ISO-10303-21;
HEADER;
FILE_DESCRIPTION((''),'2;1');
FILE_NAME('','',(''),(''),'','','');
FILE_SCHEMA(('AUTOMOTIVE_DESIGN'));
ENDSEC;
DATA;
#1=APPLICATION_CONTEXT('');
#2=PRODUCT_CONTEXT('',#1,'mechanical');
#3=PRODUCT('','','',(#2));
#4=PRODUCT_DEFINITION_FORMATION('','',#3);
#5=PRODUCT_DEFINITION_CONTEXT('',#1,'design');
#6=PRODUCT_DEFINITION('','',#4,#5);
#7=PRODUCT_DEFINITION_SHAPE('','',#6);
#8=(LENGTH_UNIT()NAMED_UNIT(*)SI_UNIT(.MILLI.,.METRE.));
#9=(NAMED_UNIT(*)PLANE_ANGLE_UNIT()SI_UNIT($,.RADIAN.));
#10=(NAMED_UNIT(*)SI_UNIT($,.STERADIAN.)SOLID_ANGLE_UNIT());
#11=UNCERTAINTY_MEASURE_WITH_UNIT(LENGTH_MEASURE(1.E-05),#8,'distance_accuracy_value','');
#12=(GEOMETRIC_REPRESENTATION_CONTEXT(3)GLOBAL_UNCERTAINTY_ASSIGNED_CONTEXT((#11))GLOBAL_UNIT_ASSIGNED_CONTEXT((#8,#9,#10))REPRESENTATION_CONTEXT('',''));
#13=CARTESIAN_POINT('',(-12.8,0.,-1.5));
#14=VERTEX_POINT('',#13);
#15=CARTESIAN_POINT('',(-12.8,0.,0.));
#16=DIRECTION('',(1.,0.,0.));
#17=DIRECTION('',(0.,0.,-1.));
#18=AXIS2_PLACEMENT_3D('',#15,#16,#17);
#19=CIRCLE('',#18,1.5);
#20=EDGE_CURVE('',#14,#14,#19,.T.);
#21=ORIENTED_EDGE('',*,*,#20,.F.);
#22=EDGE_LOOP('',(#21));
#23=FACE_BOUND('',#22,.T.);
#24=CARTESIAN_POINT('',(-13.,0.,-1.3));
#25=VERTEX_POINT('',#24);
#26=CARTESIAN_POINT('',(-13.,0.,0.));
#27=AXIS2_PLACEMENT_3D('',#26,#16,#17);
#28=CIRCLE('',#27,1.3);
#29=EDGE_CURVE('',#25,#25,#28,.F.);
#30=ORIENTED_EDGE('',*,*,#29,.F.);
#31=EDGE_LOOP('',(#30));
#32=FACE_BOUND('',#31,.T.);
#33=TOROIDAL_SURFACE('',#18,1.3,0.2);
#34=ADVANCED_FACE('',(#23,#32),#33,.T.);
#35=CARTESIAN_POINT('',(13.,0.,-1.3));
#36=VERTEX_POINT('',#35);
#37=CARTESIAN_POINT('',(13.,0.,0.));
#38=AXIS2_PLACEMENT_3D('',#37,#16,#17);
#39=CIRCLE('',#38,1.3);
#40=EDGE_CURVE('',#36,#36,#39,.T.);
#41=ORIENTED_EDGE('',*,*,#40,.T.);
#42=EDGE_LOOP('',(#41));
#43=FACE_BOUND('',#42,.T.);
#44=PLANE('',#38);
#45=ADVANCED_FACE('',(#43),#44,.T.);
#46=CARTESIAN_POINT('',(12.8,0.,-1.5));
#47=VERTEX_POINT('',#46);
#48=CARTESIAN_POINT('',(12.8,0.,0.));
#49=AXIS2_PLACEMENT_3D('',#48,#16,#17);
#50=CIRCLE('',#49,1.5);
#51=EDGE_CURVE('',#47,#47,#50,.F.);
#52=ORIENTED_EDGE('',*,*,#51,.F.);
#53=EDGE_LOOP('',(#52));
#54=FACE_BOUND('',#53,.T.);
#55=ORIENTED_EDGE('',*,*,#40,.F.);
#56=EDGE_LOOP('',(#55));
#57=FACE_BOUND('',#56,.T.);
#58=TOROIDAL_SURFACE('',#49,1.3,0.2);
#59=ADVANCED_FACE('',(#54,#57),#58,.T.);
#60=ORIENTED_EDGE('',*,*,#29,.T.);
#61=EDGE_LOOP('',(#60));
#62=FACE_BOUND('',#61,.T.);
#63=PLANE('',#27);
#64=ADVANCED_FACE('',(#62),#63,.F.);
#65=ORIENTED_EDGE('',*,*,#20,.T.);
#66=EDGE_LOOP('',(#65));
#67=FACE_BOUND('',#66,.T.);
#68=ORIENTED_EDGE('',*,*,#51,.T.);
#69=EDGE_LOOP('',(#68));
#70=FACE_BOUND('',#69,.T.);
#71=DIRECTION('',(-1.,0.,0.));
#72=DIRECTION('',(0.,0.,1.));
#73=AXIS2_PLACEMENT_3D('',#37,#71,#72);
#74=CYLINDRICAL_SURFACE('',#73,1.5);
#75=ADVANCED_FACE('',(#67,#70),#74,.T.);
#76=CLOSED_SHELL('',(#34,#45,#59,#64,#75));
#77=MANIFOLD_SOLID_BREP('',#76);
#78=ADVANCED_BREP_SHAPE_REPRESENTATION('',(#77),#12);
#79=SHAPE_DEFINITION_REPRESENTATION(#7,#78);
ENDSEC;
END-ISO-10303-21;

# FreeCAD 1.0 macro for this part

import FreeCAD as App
import Part
import Sketcher
from FreeCAD import Vector
Q = App.Units.Quantity


def edges_at(feature, points):
    """Names of the edges that pass closest to the given points."""
    edges = feature.Shape.Edges
    near = lambda p: min(range(len(edges)), key=lambda i: edges[i].distToShape(Part.Vertex(*p))[0])
    return sorted({f"Edge{near(p) + 1}" for p in points})

doc = App.newDocument("Part")
body = doc.addObject("PartDesign::Body", "Body")

# Sketch on YZ plane
sketch1 = body.newObject("Sketcher::SketchObject", "Sketch")
sketch1.AttachmentSupport = (doc.getObject("YZ_Plane"), [""])
sketch1.MapMode = "FlatFace"
sketch1.addGeometry(Part.Circle(Vector(0, 0, 0), Vector(0, 0, 1), 1.5), False)
sketch1.addConstraint(Sketcher.Constraint("Coincident", 0, 3, -1, 1))
sketch1.addConstraint(Sketcher.Constraint("Diameter", 0, Q("3 mm")))
pad1 = body.newObject("PartDesign::Pad", "Pad")
pad1.Profile = sketch1
pad1.Length = 26
pad1.Midplane = True
doc.recompute()

fillet = body.newObject("PartDesign::Fillet", "Fillet")
fillet.Base = (pad1, edges_at(pad1, [(-13, 0, 1.5), (13, 0, 1.5)]))
fillet.Radius = 0.2

doc.recompute()
